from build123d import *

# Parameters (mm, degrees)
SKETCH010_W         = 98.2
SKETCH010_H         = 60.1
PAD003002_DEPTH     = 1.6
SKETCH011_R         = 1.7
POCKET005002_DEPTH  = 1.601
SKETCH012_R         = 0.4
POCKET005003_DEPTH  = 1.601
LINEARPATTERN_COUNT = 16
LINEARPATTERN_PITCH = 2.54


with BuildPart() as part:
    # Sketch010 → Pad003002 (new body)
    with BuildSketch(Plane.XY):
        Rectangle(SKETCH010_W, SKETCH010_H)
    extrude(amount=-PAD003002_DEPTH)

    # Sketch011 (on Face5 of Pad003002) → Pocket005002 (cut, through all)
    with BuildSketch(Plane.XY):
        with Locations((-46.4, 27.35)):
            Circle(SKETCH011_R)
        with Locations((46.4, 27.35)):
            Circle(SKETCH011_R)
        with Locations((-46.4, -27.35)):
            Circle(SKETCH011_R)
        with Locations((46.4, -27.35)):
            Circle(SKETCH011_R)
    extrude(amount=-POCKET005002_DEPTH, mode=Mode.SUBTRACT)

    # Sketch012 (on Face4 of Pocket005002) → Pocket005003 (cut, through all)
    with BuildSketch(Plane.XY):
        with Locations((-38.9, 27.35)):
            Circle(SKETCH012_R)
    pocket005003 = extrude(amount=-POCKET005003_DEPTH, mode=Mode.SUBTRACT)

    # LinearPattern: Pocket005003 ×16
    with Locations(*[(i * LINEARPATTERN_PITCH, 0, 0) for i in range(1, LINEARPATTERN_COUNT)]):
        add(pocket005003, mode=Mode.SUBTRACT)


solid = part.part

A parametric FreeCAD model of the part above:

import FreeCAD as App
import Part
import Sketcher

doc = App.newDocument("Part")
body = doc.addObject("PartDesign::Body", "Body")

# Sketch on XY plane
sketch1 = doc.addObject("Sketcher::SketchObject", "Sketch")
body.addObject(sketch1)
sketch1.AttachmentSupport = (doc.XY_Plane, [""])
sketch1.MapMode = "FlatFace"
sketch1.addGeometry([
    Part.LineSegment(App.Vector(-49, 30, 0), App.Vector(-49, -30, 0)),
    Part.LineSegment(App.Vector(-49, -30, 0), App.Vector(49, -30, 0)),
    Part.LineSegment(App.Vector(49, -30, 0), App.Vector(49, 30, 0)),
    Part.LineSegment(App.Vector(49, 30, 0), App.Vector(-49, 30, 0)),
], False)
sketch1.addConstraint([
    Sketcher.Constraint("Coincident", 0, 2, 1, 1),
    Sketcher.Constraint("Coincident", 1, 2, 2, 1),
    Sketcher.Constraint("Coincident", 2, 2, 3, 1),
    Sketcher.Constraint("Coincident", 3, 2, 0, 1),
    Sketcher.Constraint("Vertical", 0),
    Sketcher.Constraint("Horizontal", 1),
    Sketcher.Constraint("Vertical", 2),
    Sketcher.Constraint("Horizontal", 3),
    Sketcher.Constraint("Symmetric", 0, 2, 2, 2, -1, 1),
    Sketcher.Constraint("DistanceX", 1, 1, 1, 2, 98.2),
    Sketcher.Constraint("DistanceY", 0, 2, 0, 1, 60.1),
])
pad1 = doc.addObject("PartDesign::Pad", "Pad")
body.addObject(pad1)
pad1.Profile = sketch1
pad1.Length = 1.6
pad1.Reversed = True

# Sketch on XY plane
sketch2 = doc.addObject("Sketcher::SketchObject", "Sketch001")
body.addObject(sketch2)
sketch2.AttachmentSupport = (doc.XY_Plane, [""])
sketch2.MapMode = "FlatFace"
sketch2.addGeometry([
    Part.Circle(App.Vector(-46.4, 27.4, 0), App.Vector(0, 0, 1), 1.7),
    Part.Circle(App.Vector(46.4, 27.4, 0), App.Vector(0, 0, 1), 1.7),
    Part.Circle(App.Vector(-46.4, -27.4, 0), App.Vector(0, 0, 1), 1.7),
    Part.Circle(App.Vector(46.4, -27.4, 0), App.Vector(0, 0, 1), 1.7),
], False)
sketch2.addConstraint([
    Sketcher.Constraint("Equal", 0, 1),
    Sketcher.Constraint("Equal", 1, 2),
    Sketcher.Constraint("Equal", 2, 3),
    Sketcher.Constraint("Symmetric", 1, 3, 2, 3, -1, 1),
    Sketcher.Constraint("Symmetric", 0, 3, 3, 3, -1, 1),
    Sketcher.Constraint("Symmetric", 0, 3, 1, 3, -2),
    Sketcher.Constraint("Diameter", 0, 3.4),
    Sketcher.Constraint("DistanceX", 0, 3, -1, 1, 46.4),
    Sketcher.Constraint("DistanceY", 2, 3, 0, 3, 54.7),
])
pocket1 = doc.addObject("PartDesign::Pocket", "Pocket")
body.addObject(pocket1)
pocket1.Profile = sketch2
pocket1.Type = "ThroughAll"

# Sketch on XY plane
sketch3 = doc.addObject("Sketcher::SketchObject", "Sketch002")
body.addObject(sketch3)
sketch3.AttachmentSupport = (doc.XY_Plane, [""])
sketch3.MapMode = "FlatFace"
sketch3.addGeometry(Part.Circle(App.Vector(-38.9, 27.35, 0), App.Vector(0, 0, 1), 0.4), False)
sketch3.addConstraint([
    Sketcher.Constraint("Diameter", 0, 0.8),
    Sketcher.Constraint("DistanceX", 0, 3, -1, 1, 38.9),
    Sketcher.Constraint("DistanceY", -1, 1, 0, 3, 27.35),
])
pocket2 = doc.addObject("PartDesign::Pocket", "Pocket001")
body.addObject(pocket2)
pocket2.Profile = sketch3
pocket2.Type = "ThroughAll"
doc.recompute()

linearpattern = doc.addObject("PartDesign::LinearPattern", "LinearPattern")
body.addObject(linearpattern)
linearpattern.Originals = [pocket2]
linearpattern.Direction = (doc.X_Axis, [""])
linearpattern.Mode = "offset"
linearpattern.Offset = 2.54
linearpattern.Occurrences = 16
body.Tip = linearpattern

doc.recompute()
